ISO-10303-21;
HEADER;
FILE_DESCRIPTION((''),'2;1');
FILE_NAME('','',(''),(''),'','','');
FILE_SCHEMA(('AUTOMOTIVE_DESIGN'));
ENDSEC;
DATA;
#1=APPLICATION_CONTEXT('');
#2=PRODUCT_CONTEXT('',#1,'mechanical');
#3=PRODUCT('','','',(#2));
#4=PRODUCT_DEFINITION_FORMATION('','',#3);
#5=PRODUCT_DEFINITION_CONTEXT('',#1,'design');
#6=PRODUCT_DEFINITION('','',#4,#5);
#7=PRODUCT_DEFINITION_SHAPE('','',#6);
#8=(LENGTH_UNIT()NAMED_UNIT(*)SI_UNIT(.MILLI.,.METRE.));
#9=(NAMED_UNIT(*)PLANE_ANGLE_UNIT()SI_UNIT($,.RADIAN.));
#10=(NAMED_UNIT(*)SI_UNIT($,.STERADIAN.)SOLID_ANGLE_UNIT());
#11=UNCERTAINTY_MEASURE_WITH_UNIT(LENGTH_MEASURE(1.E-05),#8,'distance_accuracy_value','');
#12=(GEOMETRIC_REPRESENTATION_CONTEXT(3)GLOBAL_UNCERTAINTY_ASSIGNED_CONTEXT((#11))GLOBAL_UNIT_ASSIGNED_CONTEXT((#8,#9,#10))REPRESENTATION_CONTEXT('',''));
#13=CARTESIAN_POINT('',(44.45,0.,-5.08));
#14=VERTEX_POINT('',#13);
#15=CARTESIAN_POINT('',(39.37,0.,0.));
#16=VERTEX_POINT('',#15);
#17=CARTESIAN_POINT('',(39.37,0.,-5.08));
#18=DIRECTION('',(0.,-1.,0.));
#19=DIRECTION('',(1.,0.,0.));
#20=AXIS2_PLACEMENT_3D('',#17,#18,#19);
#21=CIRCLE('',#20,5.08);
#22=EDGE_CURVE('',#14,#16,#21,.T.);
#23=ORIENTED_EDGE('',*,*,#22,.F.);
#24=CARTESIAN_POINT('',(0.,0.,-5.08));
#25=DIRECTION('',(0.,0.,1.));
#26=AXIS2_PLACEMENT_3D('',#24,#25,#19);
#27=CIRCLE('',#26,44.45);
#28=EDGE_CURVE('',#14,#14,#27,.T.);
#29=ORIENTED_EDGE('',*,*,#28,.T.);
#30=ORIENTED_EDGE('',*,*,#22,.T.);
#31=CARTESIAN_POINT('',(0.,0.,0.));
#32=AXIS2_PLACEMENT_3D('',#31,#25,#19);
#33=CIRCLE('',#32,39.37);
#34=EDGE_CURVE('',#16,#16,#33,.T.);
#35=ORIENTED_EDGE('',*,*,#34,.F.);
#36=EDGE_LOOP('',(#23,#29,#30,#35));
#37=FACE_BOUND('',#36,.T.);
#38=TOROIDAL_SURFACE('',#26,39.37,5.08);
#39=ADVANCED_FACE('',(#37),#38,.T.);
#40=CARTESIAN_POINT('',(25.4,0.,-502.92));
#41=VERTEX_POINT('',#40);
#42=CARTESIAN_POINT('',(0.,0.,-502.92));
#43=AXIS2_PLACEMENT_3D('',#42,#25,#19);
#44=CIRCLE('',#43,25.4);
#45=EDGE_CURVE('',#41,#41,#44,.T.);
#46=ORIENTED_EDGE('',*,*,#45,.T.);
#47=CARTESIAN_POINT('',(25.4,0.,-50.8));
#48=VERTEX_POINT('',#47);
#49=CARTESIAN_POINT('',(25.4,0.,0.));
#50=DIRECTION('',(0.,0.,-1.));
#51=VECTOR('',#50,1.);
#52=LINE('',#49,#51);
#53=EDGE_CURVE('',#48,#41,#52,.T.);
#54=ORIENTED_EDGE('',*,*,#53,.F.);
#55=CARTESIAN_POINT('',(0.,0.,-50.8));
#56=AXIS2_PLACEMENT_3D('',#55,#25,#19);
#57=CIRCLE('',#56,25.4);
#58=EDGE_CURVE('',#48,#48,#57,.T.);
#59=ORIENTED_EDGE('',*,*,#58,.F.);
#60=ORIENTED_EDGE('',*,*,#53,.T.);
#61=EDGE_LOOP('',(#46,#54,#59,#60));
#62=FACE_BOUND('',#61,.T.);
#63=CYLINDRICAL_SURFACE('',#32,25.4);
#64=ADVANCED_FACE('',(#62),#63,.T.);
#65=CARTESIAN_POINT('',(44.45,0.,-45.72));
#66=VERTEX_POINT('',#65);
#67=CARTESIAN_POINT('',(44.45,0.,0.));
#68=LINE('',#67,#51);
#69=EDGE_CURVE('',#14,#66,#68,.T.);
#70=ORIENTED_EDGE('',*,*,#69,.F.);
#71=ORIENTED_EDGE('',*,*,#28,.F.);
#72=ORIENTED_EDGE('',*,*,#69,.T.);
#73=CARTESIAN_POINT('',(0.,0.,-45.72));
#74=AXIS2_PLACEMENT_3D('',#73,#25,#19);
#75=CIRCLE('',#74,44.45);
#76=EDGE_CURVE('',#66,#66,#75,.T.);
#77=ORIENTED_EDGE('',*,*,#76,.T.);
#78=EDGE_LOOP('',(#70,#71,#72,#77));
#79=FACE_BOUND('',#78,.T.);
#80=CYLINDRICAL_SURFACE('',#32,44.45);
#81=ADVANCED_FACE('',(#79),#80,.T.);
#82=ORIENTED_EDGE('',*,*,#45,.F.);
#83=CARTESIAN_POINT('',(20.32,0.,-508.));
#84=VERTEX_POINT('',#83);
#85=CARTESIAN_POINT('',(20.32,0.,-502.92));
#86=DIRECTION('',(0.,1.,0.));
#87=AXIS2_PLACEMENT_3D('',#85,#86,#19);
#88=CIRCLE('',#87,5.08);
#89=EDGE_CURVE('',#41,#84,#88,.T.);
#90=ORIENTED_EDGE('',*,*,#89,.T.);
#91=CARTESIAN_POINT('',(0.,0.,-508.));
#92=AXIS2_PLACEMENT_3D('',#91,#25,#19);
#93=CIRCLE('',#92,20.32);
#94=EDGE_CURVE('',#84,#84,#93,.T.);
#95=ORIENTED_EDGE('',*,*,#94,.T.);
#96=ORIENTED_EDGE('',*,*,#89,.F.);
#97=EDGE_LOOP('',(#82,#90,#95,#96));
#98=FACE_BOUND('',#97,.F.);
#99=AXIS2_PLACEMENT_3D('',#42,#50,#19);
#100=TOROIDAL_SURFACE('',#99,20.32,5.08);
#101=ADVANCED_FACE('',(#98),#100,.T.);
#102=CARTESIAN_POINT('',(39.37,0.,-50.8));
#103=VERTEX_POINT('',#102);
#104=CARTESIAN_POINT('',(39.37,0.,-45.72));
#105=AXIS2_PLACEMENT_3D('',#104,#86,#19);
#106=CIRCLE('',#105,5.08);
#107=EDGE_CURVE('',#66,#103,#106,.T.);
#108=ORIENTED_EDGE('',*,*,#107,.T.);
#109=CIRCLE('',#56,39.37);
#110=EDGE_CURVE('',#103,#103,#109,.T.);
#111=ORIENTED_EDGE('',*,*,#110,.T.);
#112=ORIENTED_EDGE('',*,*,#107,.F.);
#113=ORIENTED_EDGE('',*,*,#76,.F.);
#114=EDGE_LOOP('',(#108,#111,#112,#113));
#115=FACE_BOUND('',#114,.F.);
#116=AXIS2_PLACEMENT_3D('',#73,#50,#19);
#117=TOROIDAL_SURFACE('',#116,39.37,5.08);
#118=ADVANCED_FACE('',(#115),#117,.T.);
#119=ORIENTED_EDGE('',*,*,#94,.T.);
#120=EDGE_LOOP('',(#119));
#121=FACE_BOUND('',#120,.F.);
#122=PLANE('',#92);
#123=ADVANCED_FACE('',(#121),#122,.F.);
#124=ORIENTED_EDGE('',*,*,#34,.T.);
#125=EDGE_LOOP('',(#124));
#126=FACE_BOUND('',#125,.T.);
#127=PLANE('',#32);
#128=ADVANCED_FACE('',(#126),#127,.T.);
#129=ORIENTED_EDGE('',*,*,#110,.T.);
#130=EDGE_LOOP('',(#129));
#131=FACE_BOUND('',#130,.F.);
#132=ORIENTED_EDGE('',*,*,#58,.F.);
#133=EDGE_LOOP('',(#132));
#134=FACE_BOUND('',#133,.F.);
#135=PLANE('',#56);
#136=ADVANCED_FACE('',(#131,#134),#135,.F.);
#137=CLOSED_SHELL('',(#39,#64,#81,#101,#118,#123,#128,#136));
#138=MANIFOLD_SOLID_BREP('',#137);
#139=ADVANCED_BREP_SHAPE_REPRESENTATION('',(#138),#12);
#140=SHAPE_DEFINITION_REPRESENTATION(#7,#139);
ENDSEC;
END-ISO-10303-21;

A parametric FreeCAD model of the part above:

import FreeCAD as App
import Part
import Sketcher

V = App.Vector
Q = App.Units.Quantity


def edges_at(feature, points):
    """Names of the edges that pass closest to the given points."""
    edges = feature.Shape.Edges
    near = lambda p: min(range(len(edges)), key=lambda i: edges[i].distToShape(Part.Vertex(*p))[0])
    return sorted({f"Edge{near(p) + 1}" for p in points})

doc = App.newDocument("Part")
body = doc.addObject("PartDesign::Body", "Body")

sketch1 = body.newObject("Sketcher::SketchObject", "Sketch")
sketch1.AttachmentSupport = (doc.getObject("XY_Plane"), [""])
sketch1.MapMode = "FlatFace"
sketch1.addGeometry(Part.Circle(V(0, 0, 0), V(0, 0, 1), 25.4), False)
sketch1.addConstraint([
    Sketcher.Constraint("Coincident", 0, 3, -1, 1),
    Sketcher.Constraint("Diameter", 0, Q("2 in")),
])
pad1 = body.newObject("PartDesign::Pad", "Pad")
pad1.Profile = sketch1
pad1.Length = Q("20 in")
pad1.Reversed = True

sketch2 = body.newObject("Sketcher::SketchObject", "Sketch001")
sketch2.AttachmentSupport = (doc.getObject("XY_Plane"), [""])
sketch2.MapMode = "FlatFace"
sketch2.addGeometry([
    Part.Circle(V(0, 0, 0), V(0, 0, 1), 44.45),
    Part.Circle(V(0, 0, 0), V(0, 0, 1), 25.4),
], False)
sketch2.addConstraint([
    Sketcher.Constraint("Coincident", 0, 3, -1, 1),
    Sketcher.Constraint("Coincident", 1, 3, -1, 1),
    Sketcher.Constraint("Diameter", 1, Q("2 in")),
    Sketcher.Constraint("Diameter", 0, Q("3.5 in")),
])
pad2 = body.newObject("PartDesign::Pad", "Pad001")
pad2.Profile = sketch2
pad2.Length = Q("2 in")
pad2.Reversed = True
doc.recompute()

fillet = body.newObject("PartDesign::Fillet", "Fillet")
fillet.Base = (pad2, edges_at(pad2, [(-44.45, 0, -50.8), (-44.45, 0, 0), (-25.4, 0, -508)]))
fillet.Radius = Q("0.2 in")

doc.recompute()
